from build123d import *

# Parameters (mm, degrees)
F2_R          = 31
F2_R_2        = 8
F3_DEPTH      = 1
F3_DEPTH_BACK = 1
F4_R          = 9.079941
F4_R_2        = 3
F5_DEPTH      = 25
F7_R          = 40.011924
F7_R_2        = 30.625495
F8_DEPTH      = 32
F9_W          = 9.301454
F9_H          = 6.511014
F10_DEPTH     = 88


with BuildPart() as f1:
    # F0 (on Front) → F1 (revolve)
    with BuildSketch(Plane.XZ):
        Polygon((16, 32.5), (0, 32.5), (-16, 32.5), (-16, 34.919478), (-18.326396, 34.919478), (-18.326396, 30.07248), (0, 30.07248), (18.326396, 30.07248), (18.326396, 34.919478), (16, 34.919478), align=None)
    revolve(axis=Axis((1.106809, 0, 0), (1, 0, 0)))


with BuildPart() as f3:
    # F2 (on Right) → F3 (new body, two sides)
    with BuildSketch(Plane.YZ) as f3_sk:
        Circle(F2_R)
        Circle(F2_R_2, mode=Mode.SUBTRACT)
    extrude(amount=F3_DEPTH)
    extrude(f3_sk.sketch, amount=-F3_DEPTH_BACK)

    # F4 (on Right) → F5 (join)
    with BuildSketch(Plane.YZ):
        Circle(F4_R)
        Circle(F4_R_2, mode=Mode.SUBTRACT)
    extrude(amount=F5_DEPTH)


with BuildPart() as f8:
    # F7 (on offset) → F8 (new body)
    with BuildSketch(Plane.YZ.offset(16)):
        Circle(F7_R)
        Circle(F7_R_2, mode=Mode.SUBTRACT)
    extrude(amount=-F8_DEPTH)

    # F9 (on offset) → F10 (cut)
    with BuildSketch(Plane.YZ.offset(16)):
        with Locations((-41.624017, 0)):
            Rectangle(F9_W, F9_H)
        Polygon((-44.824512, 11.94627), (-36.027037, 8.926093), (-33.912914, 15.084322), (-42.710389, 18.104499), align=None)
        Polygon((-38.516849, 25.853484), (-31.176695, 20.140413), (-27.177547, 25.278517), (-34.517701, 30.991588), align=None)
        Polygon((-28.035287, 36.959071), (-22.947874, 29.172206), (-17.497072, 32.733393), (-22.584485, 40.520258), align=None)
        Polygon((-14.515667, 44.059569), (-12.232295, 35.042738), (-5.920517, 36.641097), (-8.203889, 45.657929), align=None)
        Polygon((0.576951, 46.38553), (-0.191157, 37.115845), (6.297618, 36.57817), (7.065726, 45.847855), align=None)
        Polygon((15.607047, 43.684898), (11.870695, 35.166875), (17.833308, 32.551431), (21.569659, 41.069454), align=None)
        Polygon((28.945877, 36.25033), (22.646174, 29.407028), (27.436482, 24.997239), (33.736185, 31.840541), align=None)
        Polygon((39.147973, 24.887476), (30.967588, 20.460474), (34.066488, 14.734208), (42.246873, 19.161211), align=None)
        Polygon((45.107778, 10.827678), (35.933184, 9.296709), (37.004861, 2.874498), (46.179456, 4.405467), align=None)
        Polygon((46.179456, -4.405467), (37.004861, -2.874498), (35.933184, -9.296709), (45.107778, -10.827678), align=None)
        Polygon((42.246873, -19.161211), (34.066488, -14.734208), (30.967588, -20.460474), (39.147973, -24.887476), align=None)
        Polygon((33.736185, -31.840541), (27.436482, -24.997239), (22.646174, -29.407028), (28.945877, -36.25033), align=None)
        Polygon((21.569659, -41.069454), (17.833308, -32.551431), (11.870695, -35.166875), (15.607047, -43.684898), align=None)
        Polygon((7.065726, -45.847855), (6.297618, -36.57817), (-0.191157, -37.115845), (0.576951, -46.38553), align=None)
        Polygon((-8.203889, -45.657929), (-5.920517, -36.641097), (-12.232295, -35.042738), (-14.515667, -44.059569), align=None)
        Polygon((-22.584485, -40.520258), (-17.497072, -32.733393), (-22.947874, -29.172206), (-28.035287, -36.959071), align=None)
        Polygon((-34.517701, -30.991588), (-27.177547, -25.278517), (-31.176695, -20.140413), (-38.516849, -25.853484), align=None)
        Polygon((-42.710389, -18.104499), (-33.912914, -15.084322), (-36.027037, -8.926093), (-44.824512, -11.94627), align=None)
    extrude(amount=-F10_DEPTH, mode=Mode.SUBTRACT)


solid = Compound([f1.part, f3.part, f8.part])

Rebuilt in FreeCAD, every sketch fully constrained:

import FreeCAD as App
import Part
import Sketcher
Q = App.Units.Quantity


def add_polygon(sketch, points):
    """Adds a closed chain of lines whose ends are joined by coincident constraints."""
    first, n = sketch.GeometryCount, len(points)
    for a, b in zip(points, points[1:] + points[:1]):
        sketch.addGeometry(Part.LineSegment(App.Vector(*a, 0), App.Vector(*b, 0)), False)
    for i in range(n):
        sketch.addConstraint(Sketcher.Constraint("Coincident", first + i, 2, first + (i + 1) % n, 1))

doc = App.newDocument("Part")
params = doc.addObject("Spreadsheet::Sheet", "Params")
for row, (alias, value) in enumerate([
    ("sketch1_width", "32 mm"),
    ("revolution_angle", "360 deg"),
    ("sketch2_diameter", "62 mm"),
    ("sketch2_diameter2", "16 mm"),
    ("pad1_length", "1 mm"),
    ("pad1_length2", "1 mm"),
    ("sketch3_diameter", "6 mm"),
    ("pad2_length", "25 mm"),
    ("pad3_length", "32 mm"),
    ("pocket1_length", "88 mm"),
], start=1):
    params.set(f"A{row}", alias)
    params.set(f"B{row}", "=" + value)
    params.setAlias(f"B{row}", alias)

body = doc.addObject("PartDesign::Body", "Body")

sketch1 = body.newObject("Sketcher::SketchObject", "Sketch")
sketch1.AttachmentSupport = (doc.getObject("XZ_Plane"), [""])
sketch1.MapMode = "FlatFace"
add_polygon(sketch1, [(16, 32.5), (-16, 32.5), (-16, 34.9), (-18.3, 34.9), (-18.3, 30.1), (18.3, 30.1), (18.3, 34.9), (16, 34.9)])
sketch1.addConstraint([
    Sketcher.Constraint("Horizontal", 0),
    Sketcher.Constraint("Vertical", 1),
    Sketcher.Constraint("Horizontal", 2),
    Sketcher.Constraint("Vertical", 3),
    Sketcher.Constraint("Horizontal", 4),
    Sketcher.Constraint("Vertical", 5),
    Sketcher.Constraint("Horizontal", 6),
    Sketcher.Constraint("Vertical", 7),
    Sketcher.Constraint("Symmetric", 2, 2, 5, 2, -2),
    Sketcher.Constraint("Equal", 2, 6),
    Sketcher.Constraint("DistanceX", 0, 2, 0, 1, Q("32 mm")),
    Sketcher.Constraint("DistanceY", -1, 1, 0, 2, Q("32.5 mm")),
    Sketcher.Constraint("DistanceX", 4, 1, 4, 2, Q("36.652792 mm")),
    Sketcher.Constraint("DistanceY", 1, 1, 1, 2, Q("2.419478 mm")),
    Sketcher.Constraint("DistanceY", 3, 2, 3, 1, Q("4.846998 mm")),
])
sketch1.setExpression("Constraints[18]", "Params.sketch1_width")
revolution = body.newObject("PartDesign::Revolution", "Revolution")
revolution.Profile = sketch1
revolution.ReferenceAxis = (sketch1, ["H_Axis"])
revolution.setExpression("Angle", "Params.revolution_angle")
body2 = doc.addObject("PartDesign::Body", "Body001")

sketch2 = body2.newObject("Sketcher::SketchObject", "Sketch001")
sketch2.AttachmentSupport = (doc.getObject("YZ_Plane001"), [""])
sketch2.MapMode = "FlatFace"
sketch2.addGeometry([
    Part.Circle(App.Vector(0, 0, 0), App.Vector(0, 0, 1), 31),
    Part.Circle(App.Vector(0, 0, 0), App.Vector(0, 0, 1), 8),
], False)
sketch2.addConstraint([
    Sketcher.Constraint("Coincident", 0, 3, -1, 1),
    Sketcher.Constraint("Coincident", 1, 3, -1, 1),
    Sketcher.Constraint("Diameter", 0, Q("62 mm")),
    Sketcher.Constraint("Diameter", 1, Q("16 mm")),
])
sketch2.setExpression("Constraints[2]", "Params.sketch2_diameter")
sketch2.setExpression("Constraints[3]", "Params.sketch2_diameter2")
pad1 = body2.newObject("PartDesign::Pad", "Pad")
pad1.Profile = sketch2
pad1.Type = "TwoLengths"
pad1.setExpression("Length", "Params.pad1_length")
pad1.setExpression("Length2", "Params.pad1_length2")

sketch3 = body2.newObject("Sketcher::SketchObject", "Sketch002")
sketch3.AttachmentSupport = (doc.getObject("YZ_Plane001"), [""])
sketch3.MapMode = "FlatFace"
sketch3.addGeometry([
    Part.Circle(App.Vector(0, 0, 0), App.Vector(0, 0, 1), 9.1),
    Part.Circle(App.Vector(0, 0, 0), App.Vector(0, 0, 1), 3),
], False)
sketch3.addConstraint([
    Sketcher.Constraint("Coincident", 0, 3, -1, 1),
    Sketcher.Constraint("Coincident", 1, 3, -1, 1),
    Sketcher.Constraint("Diameter", 1, Q("6 mm")),
    Sketcher.Constraint("Diameter", 0, Q("18.159882 mm")),
])
sketch3.setExpression("Constraints[2]", "Params.sketch3_diameter")
pad2 = body2.newObject("PartDesign::Pad", "Pad001")
pad2.Profile = sketch3
pad2.setExpression("Length", "Params.pad2_length")
body3 = doc.addObject("PartDesign::Body", "Body002")

sketch4 = body3.newObject("Sketcher::SketchObject", "Sketch003")
sketch4.AttachmentSupport = (doc.getObject("YZ_Plane002"), [""])
sketch4.MapMode = "FlatFace"
sketch4.AttachmentOffset = App.Placement(App.Vector(0, 0, 16), App.Rotation())
sketch4.addGeometry([
    Part.Circle(App.Vector(0, 0, 0), App.Vector(0, 0, 1), 40),
    Part.Circle(App.Vector(0, 0, 0), App.Vector(0, 0, 1), 31),
], False)
sketch4.addConstraint([
    Sketcher.Constraint("Coincident", 0, 3, -1, 1),
    Sketcher.Constraint("Coincident", 1, 3, -1, 1),
    Sketcher.Constraint("Diameter", 0, Q("80.023848 mm")),
    Sketcher.Constraint("Diameter", 1, Q("61.25099 mm")),
])
pad3 = body3.newObject("PartDesign::Pad", "Pad002")
pad3.Profile = sketch4
pad3.setExpression("Length", "Params.pad3_length")
pad3.Reversed = True

sketch5 = body3.newObject("Sketcher::SketchObject", "Sketch004")
sketch5.AttachmentSupport = (doc.getObject("YZ_Plane002"), [""])
sketch5.MapMode = "FlatFace"
sketch5.AttachmentOffset = App.Placement(App.Vector(0, 0, 16), App.Rotation())
add_polygon(sketch5, [(-46, 3), (-46, -3), (-37, -3), (-37, 3)])
add_polygon(sketch5, [(-45, 12), (-36, 9), (-34, 15), (-43, 18)])
add_polygon(sketch5, [(-39, 26), (-31, 20), (-27, 25), (-35, 31)])
add_polygon(sketch5, [(-28, 37), (-23, 29), (-17, 33), (-23, 41)])
add_polygon(sketch5, [(-15, 44), (-12, 35), (-6, 37), (-8, 46)])
add_polygon(sketch5, [(1, 46), (0, 37), (6, 37), (7, 46)])
add_polygon(sketch5, [(16, 44), (12, 35), (18, 33), (22, 41)])
add_polygon(sketch5, [(29, 36), (23, 29), (27, 25), (34, 32)])
add_polygon(sketch5, [(39, 25), (31, 20), (34, 15), (42, 19)])
add_polygon(sketch5, [(45, 11), (36, 9), (37, 3), (46, 4)])
add_polygon(sketch5, [(46, -4), (37, -3), (36, -9), (45, -11)])
add_polygon(sketch5, [(42, -19), (34, -15), (31, -20), (39, -25)])
add_polygon(sketch5, [(34, -32), (27, -25), (23, -29), (29, -36)])
add_polygon(sketch5, [(22, -41), (18, -33), (12, -35), (16, -44)])
add_polygon(sketch5, [(7, -46), (6, -37), (0, -37), (1, -46)])
add_polygon(sketch5, [(-8, -46), (-6, -37), (-12, -35), (-15, -44)])
add_polygon(sketch5, [(-23, -41), (-17, -33), (-23, -29), (-28, -37)])
add_polygon(sketch5, [(-35, -31), (-27, -25), (-31, -20), (-39, -26)])
add_polygon(sketch5, [(-43, -18), (-34, -15), (-36, -9), (-45, -12)])
sketch5.addConstraint([
    Sketcher.Constraint("Vertical", 0),
    Sketcher.Constraint("Horizontal", 1),
    Sketcher.Constraint("Vertical", 2),
    Sketcher.Constraint("Horizontal", 3),
    Sketcher.Constraint("Symmetric", 37, 2, 40, 2, -1),
    Sketcher.Constraint("Symmetric", 36, 2, 41, 2, -1),
    Sketcher.Constraint("Symmetric", 39, 2, 42, 2, -1),
    Sketcher.Constraint("Symmetric", 38, 2, 43, 2, -1),
    Sketcher.Constraint("Symmetric", 33, 2, 44, 2, -1),
    Sketcher.Constraint("Symmetric", 32, 2, 45, 2, -1),
    Sketcher.Constraint("Symmetric", 35, 2, 46, 2, -1),
    Sketcher.Constraint("Symmetric", 34, 2, 47, 2, -1),
    Sketcher.Constraint("Symmetric", 29, 2, 48, 2, -1),
    Sketcher.Constraint("Symmetric", 28, 2, 49, 2, -1),
    Sketcher.Constraint("Symmetric", 31, 2, 50, 2, -1),
    Sketcher.Constraint("Symmetric", 30, 2, 51, 2, -1),
    Sketcher.Constraint("Symmetric", 25, 2, 52, 2, -1),
    Sketcher.Constraint("Symmetric", 24, 2, 53, 2, -1),
    Sketcher.Constraint("Symmetric", 27, 2, 54, 2, -1),
    Sketcher.Constraint("Symmetric", 26, 2, 55, 2, -1),
    Sketcher.Constraint("Symmetric", 21, 2, 56, 2, -1),
    Sketcher.Constraint("Symmetric", 20, 2, 57, 2, -1),
    Sketcher.Constraint("Symmetric", 23, 2, 58, 2, -1),
    Sketcher.Constraint("Symmetric", 22, 2, 59, 2, -1),
    Sketcher.Constraint("Symmetric", 17, 2, 60, 2, -1),
    Sketcher.Constraint("Symmetric", 16, 2, 61, 2, -1),
    Sketcher.Constraint("Symmetric", 19, 2, 62, 2, -1),
    Sketcher.Constraint("Symmetric", 18, 2, 63, 2, -1),
    Sketcher.Constraint("Symmetric", 13, 2, 64, 2, -1),
    Sketcher.Constraint("Symmetric", 12, 2, 65, 2, -1),
    Sketcher.Constraint("Symmetric", 15, 2, 66, 2, -1),
    Sketcher.Constraint("Symmetric", 14, 2, 67, 2, -1),
    Sketcher.Constraint("Symmetric", 9, 2, 68, 2, -1),
    Sketcher.Constraint("Symmetric", 8, 2, 69, 2, -1),
    Sketcher.Constraint("Symmetric", 11, 2, 70, 2, -1),
    Sketcher.Constraint("Symmetric", 10, 2, 71, 2, -1),
    Sketcher.Constraint("Symmetric", 5, 2, 72, 2, -1),
    Sketcher.Constraint("Symmetric", 4, 2, 73, 2, -1),
    Sketcher.Constraint("Symmetric", 7, 2, 74, 2, -1),
    Sketcher.Constraint("Symmetric", 6, 2, 75, 2, -1),
    Sketcher.Constraint("Perpendicular", 4, 5),
    Sketcher.Constraint("Perpendicular", 5, 6),
    Sketcher.Constraint("Perpendicular", 6, 7),
    Sketcher.Constraint("Perpendicular", 8, 9),
    Sketcher.Constraint("Perpendicular", 9, 10),
    Sketcher.Constraint("Perpendicular", 10, 11),
    Sketcher.Constraint("Perpendicular", 12, 13),
    Sketcher.Constraint("Perpendicular", 13, 14),
    Sketcher.Constraint("Perpendicular", 14, 15),
    Sketcher.Constraint("Perpendicular", 16, 17),
    Sketcher.Constraint("Perpendicular", 17, 18),
    Sketcher.Constraint("Perpendicular", 18, 19),
    Sketcher.Constraint("Perpendicular", 20, 21),
    Sketcher.Constraint("Perpendicular", 21, 22),
    Sketcher.Constraint("Perpendicular", 22, 23),
    Sketcher.Constraint("Perpendicular", 24, 25),
    Sketcher.Constraint("Perpendicular", 25, 26),
    Sketcher.Constraint("Perpendicular", 26, 27),
    Sketcher.Constraint("Perpendicular", 28, 29),
    Sketcher.Constraint("Perpendicular", 29, 30),
    Sketcher.Constraint("Perpendicular", 30, 31),
    Sketcher.Constraint("Perpendicular", 32, 33),
    Sketcher.Constraint("Perpendicular", 33, 34),
    Sketcher.Constraint("Perpendicular", 34, 35),
    Sketcher.Constraint("Perpendicular", 36, 37),
    Sketcher.Constraint("Perpendicular", 37, 38),
    Sketcher.Constraint("Perpendicular", 38, 39),
    Sketcher.Constraint("Equal", 6, 8),
    Sketcher.Constraint("Equal", 7, 9),
    Sketcher.Constraint("Equal", 10, 12),
    Sketcher.Constraint("Equal", 11, 13),
    Sketcher.Constraint("Equal", 14, 16),
    Sketcher.Constraint("Equal", 15, 17),
    Sketcher.Constraint("Equal", 18, 20),
    Sketcher.Constraint("Equal", 19, 21),
    Sketcher.Constraint("Equal", 22, 24),
    Sketcher.Constraint("Equal", 23, 25),
    Sketcher.Constraint("Equal", 26, 28),
    Sketcher.Constraint("Equal", 27, 29),
    Sketcher.Constraint("Equal", 30, 32),
    Sketcher.Constraint("Equal", 31, 33),
    Sketcher.Constraint("Equal", 34, 36),
    Sketcher.Constraint("Equal", 35, 37),
    Sketcher.Constraint("DistanceY", -1, 1, 6, 2, Q("18.104499 mm")),
    Sketcher.Constraint("DistanceX", 10, 2, -1, 1, Q("34.517701 mm")),
    Sketcher.Constraint("DistanceY", -1, 1, 37, 2, Q("2.874498 mm")),
    Sketcher.Constraint("DistanceX", 1, 1, 1, 2, Q("9.301454 mm")),
    Sketcher.Constraint("DistanceY", 0, 2, 0, 1, Q("6.511014 mm")),
    Sketcher.Constraint("DistanceX", 1, 2, -1, 1, Q("36.97329 mm")),
    Sketcher.Constraint("DistanceX", 6, 2, -1, 1, Q("42.710389 mm")),
    Sketcher.Constraint("DistanceY", -1, 1, 7, 2, Q("11.94627 mm")),
    Sketcher.Constraint("DistanceY", -1, 1, 10, 2, Q("30.991588 mm")),
    Sketcher.Constraint("DistanceX", 11, 2, -1, 1, Q("38.516849 mm")),
    Sketcher.Constraint("DistanceX", 13, 2, -1, 1, Q("17.497072 mm")),
    Sketcher.Constraint("DistanceY", -1, 1, 15, 2, Q("36.959071 mm")),
    Sketcher.Constraint("DistanceX", 18, 2, -1, 1, Q("8.203889 mm")),
    Sketcher.Constraint("DistanceY", -1, 1, 18, 2, Q("45.657929 mm")),
    Sketcher.Constraint("DistanceY", -1, 1, 19, 2, Q("44.059569 mm")),
    Sketcher.Constraint("DistanceY", -1, 1, 21, 2, Q("36.57817 mm")),
    Sketcher.Constraint("DistanceX", -1, 1, 23, 2, Q("0.576951 mm")),
    Sketcher.Constraint("DistanceY", -1, 1, 23, 2, Q("46.38553 mm")),
    Sketcher.Constraint("DistanceY", -1, 1, 25, 2, Q("32.551431 mm")),
    Sketcher.Constraint("DistanceX", -1, 1, 26, 2, Q("21.569659 mm")),
    Sketcher.Constraint("DistanceY", -1, 1, 28, 2, Q("29.407028 mm")),
    Sketcher.Constraint("DistanceY", -1, 1, 29, 2, Q("24.997239 mm")),
    Sketcher.Constraint("DistanceY", -1, 1, 30, 2, Q("31.840541 mm")),
    Sketcher.Constraint("DistanceY", -1, 1, 33, 2, Q("14.734208 mm")),
    Sketcher.Constraint("DistanceY", -1, 1, 34, 2, Q("19.161211 mm")),
    Sketcher.Constraint("DistanceY", -1, 1, 36, 2, Q("9.296709 mm")),
    Sketcher.Constraint("DistanceX", -1, 1, 37, 2, Q("37.004861 mm")),
    Sketcher.Constraint("DistanceX", -1, 1, 39, 2, Q("45.107778 mm")),
    Sketcher.Constraint("DistanceY", 0, 2, -1, 1, Q("3.255507 mm")),
    Sketcher.Constraint("DistanceX", 12, 2, -1, 1, Q("22.947874 mm")),
    Sketcher.Constraint("DistanceX", -1, 1, 24, 2, Q("11.870695 mm")),
    Sketcher.Constraint("DistanceX", -1, 1, 28, 2, Q("22.646174 mm")),
    Sketcher.Constraint("DistanceX", -1, 1, 32, 2, Q("30.967588 mm")),
])
pocket1 = body3.newObject("PartDesign::Pocket", "Pocket")
pocket1.Profile = sketch5
pocket1.setExpression("Length", "Params.pocket1_length")

doc.recompute()
